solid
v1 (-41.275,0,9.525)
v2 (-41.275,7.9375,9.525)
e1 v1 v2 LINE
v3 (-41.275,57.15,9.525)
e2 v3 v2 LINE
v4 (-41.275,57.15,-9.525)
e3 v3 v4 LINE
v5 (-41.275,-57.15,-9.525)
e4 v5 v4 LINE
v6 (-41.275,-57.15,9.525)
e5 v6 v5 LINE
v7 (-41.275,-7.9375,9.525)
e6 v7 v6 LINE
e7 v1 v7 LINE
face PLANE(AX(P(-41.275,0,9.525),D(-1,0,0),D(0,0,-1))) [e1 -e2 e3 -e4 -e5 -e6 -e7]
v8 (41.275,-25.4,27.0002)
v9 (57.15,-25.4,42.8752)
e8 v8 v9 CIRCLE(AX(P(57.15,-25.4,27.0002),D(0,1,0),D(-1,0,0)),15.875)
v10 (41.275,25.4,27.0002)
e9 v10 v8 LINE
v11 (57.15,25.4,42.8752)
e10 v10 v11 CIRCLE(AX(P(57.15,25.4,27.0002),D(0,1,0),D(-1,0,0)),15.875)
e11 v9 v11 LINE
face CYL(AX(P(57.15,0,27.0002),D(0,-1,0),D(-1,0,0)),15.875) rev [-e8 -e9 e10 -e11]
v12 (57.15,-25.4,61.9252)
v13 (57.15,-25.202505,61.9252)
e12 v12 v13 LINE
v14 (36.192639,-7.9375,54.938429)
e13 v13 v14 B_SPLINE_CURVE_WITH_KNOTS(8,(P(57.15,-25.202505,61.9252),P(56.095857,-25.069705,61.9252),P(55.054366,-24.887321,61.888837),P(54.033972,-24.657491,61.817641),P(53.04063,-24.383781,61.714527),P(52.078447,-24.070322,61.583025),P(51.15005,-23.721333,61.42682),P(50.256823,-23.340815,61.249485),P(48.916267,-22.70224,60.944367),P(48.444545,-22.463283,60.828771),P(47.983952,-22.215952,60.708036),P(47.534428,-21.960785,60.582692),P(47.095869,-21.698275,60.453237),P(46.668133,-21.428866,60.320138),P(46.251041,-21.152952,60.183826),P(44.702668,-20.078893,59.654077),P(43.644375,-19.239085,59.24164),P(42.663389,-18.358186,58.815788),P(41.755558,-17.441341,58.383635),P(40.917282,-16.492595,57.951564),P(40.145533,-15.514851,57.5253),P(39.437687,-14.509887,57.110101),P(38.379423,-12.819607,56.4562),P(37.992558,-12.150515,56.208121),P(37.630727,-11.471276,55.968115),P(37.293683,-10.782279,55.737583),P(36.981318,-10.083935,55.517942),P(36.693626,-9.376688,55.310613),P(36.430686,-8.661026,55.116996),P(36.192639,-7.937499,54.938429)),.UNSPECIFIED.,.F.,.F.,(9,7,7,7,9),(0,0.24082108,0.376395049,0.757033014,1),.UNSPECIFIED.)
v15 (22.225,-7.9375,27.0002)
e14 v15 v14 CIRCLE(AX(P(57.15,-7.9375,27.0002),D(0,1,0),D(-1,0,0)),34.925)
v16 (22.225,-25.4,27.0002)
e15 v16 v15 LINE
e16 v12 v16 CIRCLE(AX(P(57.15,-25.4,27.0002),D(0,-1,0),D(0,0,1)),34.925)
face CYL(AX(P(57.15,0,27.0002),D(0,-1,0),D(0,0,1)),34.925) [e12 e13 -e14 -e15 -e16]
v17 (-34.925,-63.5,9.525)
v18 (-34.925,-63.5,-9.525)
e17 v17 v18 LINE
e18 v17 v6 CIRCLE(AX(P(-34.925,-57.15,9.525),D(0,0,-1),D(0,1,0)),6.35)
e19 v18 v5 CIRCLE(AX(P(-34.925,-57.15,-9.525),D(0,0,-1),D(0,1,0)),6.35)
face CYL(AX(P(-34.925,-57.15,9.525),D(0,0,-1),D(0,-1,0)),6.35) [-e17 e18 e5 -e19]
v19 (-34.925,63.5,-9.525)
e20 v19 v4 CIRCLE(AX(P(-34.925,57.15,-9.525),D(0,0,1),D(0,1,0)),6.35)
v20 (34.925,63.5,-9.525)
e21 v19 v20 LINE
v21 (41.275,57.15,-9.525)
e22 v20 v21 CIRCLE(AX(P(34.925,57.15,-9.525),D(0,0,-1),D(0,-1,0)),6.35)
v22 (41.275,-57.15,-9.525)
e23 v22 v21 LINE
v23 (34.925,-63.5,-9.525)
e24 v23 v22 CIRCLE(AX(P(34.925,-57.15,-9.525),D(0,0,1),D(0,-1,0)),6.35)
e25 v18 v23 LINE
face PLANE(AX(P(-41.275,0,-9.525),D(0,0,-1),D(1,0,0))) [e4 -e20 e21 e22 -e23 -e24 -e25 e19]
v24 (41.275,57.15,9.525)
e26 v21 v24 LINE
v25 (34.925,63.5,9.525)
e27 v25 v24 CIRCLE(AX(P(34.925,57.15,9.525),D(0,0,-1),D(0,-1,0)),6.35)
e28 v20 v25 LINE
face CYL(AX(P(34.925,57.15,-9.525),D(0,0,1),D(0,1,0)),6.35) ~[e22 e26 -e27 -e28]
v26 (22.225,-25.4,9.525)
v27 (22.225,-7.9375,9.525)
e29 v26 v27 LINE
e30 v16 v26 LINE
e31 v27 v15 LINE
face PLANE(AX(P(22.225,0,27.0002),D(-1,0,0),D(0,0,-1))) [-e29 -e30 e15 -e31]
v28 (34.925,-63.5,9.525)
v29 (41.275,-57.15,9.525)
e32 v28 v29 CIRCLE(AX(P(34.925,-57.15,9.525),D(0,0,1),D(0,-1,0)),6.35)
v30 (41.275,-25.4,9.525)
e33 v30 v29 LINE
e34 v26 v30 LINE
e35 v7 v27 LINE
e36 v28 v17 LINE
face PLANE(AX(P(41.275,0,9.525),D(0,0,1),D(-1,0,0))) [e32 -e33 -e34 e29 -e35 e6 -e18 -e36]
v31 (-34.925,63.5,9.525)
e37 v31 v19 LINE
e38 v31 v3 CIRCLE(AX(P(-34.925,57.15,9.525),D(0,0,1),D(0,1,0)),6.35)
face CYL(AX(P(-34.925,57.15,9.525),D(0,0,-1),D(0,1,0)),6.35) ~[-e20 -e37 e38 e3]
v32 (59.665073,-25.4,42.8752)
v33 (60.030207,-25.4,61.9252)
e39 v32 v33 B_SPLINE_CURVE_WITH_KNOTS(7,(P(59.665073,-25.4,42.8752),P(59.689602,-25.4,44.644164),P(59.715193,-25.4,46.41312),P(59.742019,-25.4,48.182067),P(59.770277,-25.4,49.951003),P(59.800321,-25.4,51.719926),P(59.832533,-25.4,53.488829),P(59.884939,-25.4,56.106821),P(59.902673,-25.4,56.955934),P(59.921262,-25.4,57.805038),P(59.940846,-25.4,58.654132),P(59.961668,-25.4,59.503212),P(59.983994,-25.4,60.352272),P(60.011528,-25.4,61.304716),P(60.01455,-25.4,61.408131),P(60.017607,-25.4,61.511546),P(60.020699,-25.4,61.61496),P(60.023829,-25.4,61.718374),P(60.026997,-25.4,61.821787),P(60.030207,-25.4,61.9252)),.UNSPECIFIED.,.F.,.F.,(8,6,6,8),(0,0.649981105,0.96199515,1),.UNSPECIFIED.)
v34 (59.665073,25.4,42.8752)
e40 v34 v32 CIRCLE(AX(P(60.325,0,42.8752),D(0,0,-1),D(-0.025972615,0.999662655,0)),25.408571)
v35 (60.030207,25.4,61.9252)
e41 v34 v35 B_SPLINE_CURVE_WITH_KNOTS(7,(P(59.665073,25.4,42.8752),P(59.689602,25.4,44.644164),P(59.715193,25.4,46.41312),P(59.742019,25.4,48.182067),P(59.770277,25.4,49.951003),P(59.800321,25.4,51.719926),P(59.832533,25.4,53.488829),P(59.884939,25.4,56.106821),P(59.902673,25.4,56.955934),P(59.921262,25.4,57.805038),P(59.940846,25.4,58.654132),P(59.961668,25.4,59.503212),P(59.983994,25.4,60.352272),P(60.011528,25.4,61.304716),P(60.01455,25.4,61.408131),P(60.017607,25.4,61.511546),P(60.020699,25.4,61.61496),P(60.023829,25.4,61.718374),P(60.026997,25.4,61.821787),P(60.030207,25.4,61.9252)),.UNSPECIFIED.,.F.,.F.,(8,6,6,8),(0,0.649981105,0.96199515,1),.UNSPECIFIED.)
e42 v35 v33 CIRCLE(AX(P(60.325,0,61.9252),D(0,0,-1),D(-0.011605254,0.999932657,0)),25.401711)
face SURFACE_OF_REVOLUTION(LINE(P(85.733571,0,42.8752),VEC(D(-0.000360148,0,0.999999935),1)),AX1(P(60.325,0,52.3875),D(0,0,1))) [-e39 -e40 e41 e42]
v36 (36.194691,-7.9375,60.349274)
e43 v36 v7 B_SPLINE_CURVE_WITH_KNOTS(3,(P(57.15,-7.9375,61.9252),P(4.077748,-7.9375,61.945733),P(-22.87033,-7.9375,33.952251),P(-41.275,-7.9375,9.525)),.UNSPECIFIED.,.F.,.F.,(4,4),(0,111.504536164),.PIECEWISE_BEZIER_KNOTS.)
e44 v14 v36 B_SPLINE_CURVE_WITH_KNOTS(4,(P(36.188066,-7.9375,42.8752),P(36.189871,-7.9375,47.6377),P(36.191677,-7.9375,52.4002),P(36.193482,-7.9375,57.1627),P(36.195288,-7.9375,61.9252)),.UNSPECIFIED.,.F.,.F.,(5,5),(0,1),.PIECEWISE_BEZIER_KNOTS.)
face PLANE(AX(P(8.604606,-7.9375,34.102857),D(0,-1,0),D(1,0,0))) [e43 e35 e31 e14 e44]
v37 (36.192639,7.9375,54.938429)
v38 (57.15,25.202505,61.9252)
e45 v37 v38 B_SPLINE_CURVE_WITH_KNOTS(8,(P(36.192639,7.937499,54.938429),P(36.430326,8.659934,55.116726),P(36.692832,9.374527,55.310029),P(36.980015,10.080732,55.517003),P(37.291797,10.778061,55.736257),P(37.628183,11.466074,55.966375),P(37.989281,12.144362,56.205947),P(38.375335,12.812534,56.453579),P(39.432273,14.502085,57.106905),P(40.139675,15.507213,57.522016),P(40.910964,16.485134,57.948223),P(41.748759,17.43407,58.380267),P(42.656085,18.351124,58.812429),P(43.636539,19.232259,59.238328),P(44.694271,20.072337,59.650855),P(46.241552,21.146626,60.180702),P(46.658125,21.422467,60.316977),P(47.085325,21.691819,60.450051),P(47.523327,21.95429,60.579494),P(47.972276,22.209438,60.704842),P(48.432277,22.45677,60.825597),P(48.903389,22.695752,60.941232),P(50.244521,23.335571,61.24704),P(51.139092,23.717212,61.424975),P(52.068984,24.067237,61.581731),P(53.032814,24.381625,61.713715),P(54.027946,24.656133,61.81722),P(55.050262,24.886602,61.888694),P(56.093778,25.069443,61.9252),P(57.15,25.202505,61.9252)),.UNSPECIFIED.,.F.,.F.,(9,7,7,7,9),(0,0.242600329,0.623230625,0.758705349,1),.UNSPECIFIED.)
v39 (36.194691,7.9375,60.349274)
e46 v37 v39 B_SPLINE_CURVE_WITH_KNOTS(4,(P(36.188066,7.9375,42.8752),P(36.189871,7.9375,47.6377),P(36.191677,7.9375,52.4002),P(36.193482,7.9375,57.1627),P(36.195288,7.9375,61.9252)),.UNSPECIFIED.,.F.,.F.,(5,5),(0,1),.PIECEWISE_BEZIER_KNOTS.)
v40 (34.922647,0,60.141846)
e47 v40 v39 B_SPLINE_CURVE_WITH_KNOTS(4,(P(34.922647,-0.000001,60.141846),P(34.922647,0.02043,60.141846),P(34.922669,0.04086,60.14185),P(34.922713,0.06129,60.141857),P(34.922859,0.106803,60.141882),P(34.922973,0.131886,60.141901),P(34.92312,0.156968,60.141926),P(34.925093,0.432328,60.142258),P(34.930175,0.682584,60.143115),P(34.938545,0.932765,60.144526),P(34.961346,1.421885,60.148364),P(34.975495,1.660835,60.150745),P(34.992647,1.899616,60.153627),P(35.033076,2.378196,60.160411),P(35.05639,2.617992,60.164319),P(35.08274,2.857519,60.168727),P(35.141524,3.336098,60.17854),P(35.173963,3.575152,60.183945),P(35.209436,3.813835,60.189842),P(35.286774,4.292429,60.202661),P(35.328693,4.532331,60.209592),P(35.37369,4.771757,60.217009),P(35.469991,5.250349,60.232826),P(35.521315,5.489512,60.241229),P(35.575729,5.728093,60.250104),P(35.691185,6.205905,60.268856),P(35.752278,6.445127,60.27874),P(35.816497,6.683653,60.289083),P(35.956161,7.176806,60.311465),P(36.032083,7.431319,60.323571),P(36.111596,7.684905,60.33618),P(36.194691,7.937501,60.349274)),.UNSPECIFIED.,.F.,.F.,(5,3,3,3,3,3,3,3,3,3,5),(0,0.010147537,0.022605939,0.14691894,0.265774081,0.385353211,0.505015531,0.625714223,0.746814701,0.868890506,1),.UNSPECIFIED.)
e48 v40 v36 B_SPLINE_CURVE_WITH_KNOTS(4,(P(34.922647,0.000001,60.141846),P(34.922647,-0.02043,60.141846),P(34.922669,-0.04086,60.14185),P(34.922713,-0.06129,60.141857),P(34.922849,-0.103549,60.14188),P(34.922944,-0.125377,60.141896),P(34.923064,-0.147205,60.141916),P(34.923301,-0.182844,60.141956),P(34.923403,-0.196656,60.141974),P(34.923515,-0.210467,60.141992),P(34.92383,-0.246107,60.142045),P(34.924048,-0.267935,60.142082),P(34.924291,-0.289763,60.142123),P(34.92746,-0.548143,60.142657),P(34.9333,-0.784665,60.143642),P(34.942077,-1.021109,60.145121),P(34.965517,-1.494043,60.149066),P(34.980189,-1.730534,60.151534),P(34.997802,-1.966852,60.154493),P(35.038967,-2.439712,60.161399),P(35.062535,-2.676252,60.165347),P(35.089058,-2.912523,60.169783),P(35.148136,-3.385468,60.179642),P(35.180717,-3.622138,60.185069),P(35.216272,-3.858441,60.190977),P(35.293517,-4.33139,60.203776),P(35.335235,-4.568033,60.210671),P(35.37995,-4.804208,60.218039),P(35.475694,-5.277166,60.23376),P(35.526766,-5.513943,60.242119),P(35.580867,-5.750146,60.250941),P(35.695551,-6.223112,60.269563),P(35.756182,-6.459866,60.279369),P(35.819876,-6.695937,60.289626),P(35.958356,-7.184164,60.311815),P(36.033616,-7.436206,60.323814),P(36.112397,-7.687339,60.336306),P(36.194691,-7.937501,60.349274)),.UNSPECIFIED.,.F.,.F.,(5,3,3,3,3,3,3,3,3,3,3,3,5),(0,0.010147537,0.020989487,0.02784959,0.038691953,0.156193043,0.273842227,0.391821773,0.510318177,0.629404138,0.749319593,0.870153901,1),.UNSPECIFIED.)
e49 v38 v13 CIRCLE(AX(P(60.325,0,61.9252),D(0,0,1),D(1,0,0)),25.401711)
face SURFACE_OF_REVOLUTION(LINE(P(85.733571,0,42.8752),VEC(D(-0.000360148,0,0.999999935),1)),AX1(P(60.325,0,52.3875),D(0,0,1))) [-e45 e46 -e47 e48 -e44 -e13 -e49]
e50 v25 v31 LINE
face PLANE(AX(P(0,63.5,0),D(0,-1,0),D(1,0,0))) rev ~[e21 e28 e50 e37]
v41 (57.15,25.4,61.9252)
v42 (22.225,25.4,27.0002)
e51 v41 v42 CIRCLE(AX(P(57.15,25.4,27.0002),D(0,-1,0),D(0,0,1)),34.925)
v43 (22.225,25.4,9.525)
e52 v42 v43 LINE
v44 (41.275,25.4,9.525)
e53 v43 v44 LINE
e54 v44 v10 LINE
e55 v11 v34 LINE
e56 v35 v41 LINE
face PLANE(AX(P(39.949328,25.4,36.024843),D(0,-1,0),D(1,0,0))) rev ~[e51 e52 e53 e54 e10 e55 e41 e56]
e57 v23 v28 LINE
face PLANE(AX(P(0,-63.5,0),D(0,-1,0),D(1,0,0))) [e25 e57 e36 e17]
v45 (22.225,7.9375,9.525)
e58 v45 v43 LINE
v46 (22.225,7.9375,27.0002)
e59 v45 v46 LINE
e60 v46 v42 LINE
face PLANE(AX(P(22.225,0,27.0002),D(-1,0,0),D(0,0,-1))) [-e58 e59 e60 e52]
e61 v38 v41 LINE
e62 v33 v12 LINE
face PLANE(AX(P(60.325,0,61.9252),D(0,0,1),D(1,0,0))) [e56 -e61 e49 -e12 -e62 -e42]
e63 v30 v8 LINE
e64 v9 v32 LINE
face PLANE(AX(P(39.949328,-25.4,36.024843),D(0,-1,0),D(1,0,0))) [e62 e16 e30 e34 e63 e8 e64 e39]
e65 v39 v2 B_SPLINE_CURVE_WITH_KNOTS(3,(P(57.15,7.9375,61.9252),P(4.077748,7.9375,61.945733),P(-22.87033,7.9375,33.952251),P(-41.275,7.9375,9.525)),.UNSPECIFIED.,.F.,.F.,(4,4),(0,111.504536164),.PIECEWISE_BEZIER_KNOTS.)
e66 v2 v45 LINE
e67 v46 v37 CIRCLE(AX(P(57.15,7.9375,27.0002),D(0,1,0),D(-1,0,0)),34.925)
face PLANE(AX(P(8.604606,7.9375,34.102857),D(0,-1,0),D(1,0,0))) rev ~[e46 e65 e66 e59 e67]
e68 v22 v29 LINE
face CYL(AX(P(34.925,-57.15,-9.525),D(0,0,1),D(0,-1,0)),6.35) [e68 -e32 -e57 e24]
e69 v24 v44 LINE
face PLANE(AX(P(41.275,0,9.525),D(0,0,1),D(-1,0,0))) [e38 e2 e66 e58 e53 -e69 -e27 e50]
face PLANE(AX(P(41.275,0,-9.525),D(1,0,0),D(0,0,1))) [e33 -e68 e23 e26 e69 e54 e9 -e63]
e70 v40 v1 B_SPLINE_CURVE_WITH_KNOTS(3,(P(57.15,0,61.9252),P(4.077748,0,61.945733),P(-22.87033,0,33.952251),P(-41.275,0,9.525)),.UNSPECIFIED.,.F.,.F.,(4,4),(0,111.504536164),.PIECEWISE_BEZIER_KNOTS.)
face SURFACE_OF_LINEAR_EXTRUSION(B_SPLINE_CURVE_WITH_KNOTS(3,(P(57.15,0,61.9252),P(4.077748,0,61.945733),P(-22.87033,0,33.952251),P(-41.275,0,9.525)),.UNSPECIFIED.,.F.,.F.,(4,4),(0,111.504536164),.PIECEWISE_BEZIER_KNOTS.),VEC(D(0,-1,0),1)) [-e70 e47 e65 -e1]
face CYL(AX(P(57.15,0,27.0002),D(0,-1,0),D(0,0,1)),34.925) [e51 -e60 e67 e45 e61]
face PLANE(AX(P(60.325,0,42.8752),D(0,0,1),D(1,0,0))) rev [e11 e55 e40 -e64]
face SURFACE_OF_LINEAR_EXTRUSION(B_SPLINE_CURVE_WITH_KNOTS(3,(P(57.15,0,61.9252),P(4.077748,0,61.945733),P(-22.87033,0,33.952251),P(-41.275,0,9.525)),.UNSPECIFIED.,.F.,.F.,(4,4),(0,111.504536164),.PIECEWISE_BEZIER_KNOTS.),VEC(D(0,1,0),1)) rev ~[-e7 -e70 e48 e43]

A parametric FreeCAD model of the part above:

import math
import FreeCAD as App
import Part
import Sketcher

V = App.Vector
Q = App.Units.Quantity


def edges_at(feature, points):
    """Names of the edges that pass closest to the given points."""
    edges = feature.Shape.Edges
    near = lambda p: min(range(len(edges)), key=lambda i: edges[i].distToShape(Part.Vertex(*p))[0])
    return sorted({f"Edge{near(p) + 1}" for p in points})


def add_polygon(sketch, points):
    """Adds a closed chain of lines whose ends are joined by coincident constraints."""
    first, n = sketch.GeometryCount, len(points)
    for a, b in zip(points, points[1:] + points[:1]):
        sketch.addGeometry(Part.LineSegment(App.Vector(*a, 0), App.Vector(*b, 0)), False)
    for i in range(n):
        sketch.addConstraint(Sketcher.Constraint("Coincident", first + i, 2, first + (i + 1) % n, 1))

doc = App.newDocument("Part")
body = doc.addObject("PartDesign::Body", "Body")

sketch1 = body.newObject("Sketcher::SketchObject", "Sketch")
sketch1.AttachmentSupport = (doc.getObject("XZ_Plane"), [""])
sketch1.MapMode = "FlatFace"
add_polygon(sketch1, [(41, -10), (41, 10), (-41, 10), (-41, -10)])
sketch1.addConstraint(Sketcher.Constraint("Vertical", 0))
sketch1.addConstraint(Sketcher.Constraint("Horizontal", 1))
sketch1.addConstraint(Sketcher.Constraint("Vertical", 2))
sketch1.addConstraint(Sketcher.Constraint("Horizontal", 3))
sketch1.addConstraint(Sketcher.Constraint("Symmetric", 0, 2, 2, 2, -1, 1))
sketch1.addConstraint(Sketcher.Constraint("DistanceX", 1, 2, 1, 1, Q("3.25 in")))
sketch1.addConstraint(Sketcher.Constraint("DistanceY", 0, 1, 0, 2, Q("0.75 in")))
pad1 = body.newObject("PartDesign::Pad", "Pad")
pad1.Profile = sketch1
pad1.Length = Q("5 in")
pad1.Midplane = True

sketch2 = body.newObject("Sketcher::SketchObject", "Sketch001")
sketch2.AttachmentSupport = (doc.getObject("XZ_Plane"), [""])
sketch2.MapMode = "FlatFace"
sketch2.addGeometry(Part.LineSegment(V(22.2, 9.5, 0), V(41.3, 9.5, 0)), False)
sketch2.addGeometry(Part.LineSegment(V(41.3, 9.5, 0), V(41.3, 27, 0)), False)
sketch2.addGeometry(Part.ArcOfCircle(Part.Circle(V(57.1, 27, 0), V(0, 0, 1), 15.9), math.radians(90), math.radians(180)), False)
sketch2.addGeometry(Part.LineSegment(V(57.1, 42.9, 0), V(60.3, 42.9, 0)), False)
sketch2.addGeometry(Part.LineSegment(V(60.3, 42.9, 0), V(60.3, 61.9, 0)), False)
sketch2.addGeometry(Part.LineSegment(V(60.3, 61.9, 0), V(57.1, 61.9, 0)), False)
sketch2.addGeometry(Part.ArcOfCircle(Part.Circle(V(57.1, 27, 0), V(0, 0, 1), 34.9), math.radians(90), math.radians(180)), False)
sketch2.addGeometry(Part.LineSegment(V(22.2, 27, 0), V(22.2, 9.5, 0)), False)
sketch2.addConstraint(Sketcher.Constraint("Coincident", 0, 2, 1, 1))
sketch2.addConstraint(Sketcher.Constraint("Tangent", 1, 2, 2, 2))
sketch2.addConstraint(Sketcher.Constraint("Tangent", 2, 1, 3, 1))
sketch2.addConstraint(Sketcher.Constraint("Coincident", 3, 2, 4, 1))
sketch2.addConstraint(Sketcher.Constraint("Coincident", 4, 2, 5, 1))
sketch2.addConstraint(Sketcher.Constraint("Tangent", 5, 2, 6, 1))
sketch2.addConstraint(Sketcher.Constraint("Tangent", 6, 2, 7, 1))
sketch2.addConstraint(Sketcher.Constraint("Coincident", 7, 2, 0, 1))
sketch2.addConstraint(Sketcher.Constraint("Horizontal", 0))
sketch2.addConstraint(Sketcher.Constraint("Vertical", 1))
sketch2.addConstraint(Sketcher.Constraint("Horizontal", 3))
sketch2.addConstraint(Sketcher.Constraint("Vertical", 4))
sketch2.addConstraint(Sketcher.Constraint("Horizontal", 5))
sketch2.addConstraint(Sketcher.Constraint("Vertical", 7))
sketch2.addConstraint(Sketcher.Constraint("Coincident", 6, 3, 2, 3))
sketch2.addConstraint(Sketcher.Constraint("Radius", 2, Q("0.625 in")))
sketch2.addConstraint(Sketcher.Constraint("Radius", 6, Q("1.375 in")))
sketch2.addConstraint(Sketcher.Constraint("DistanceX", 3, 1, 3, 2, Q("0.125 in")))
sketch2.addConstraint(Sketcher.Constraint("DistanceY", 1, 1, 1, 2, Q("0.688 in")))
sketch2.addConstraint(Sketcher.Constraint("DistanceX", -1, 1, 2, 3, Q("2.25 in")))
sketch2.addConstraint(Sketcher.Constraint("DistanceY", -1, 1, 2, 3, Q("1.063 in")))
pad2 = body.newObject("PartDesign::Pad", "Pad001")
pad2.Profile = sketch2
pad2.Length = Q("2 in")
pad2.Midplane = True

sketch3 = body.newObject("Sketcher::SketchObject", "Sketch002")
sketch3.AttachmentSupport = (doc.getObject("XZ_Plane"), [""])
sketch3.MapMode = "FlatFace"
sketch3.addGeometry(Part.LineSegment(V(-41.275, 9.525, 0), V(22.225, 9.525, 0)), False)
sketch3.addGeometry(Part.LineSegment(V(22.225, 9.525, 0), V(22.225, 27.0002, 0)), False)
sketch3.addGeometry(Part.ArcOfCircle(Part.Circle(V(57.15, 27.0002, 0), V(0, 0, 1), 34.925), math.radians(90), math.radians(180)), False)
sketch3.addGeometry(Part.BSplineCurve([V(57.15, 61.9252, 0), V(4.077748, 61.945733, 0), V(-22.87033, 33.952251, 0), V(-41.275, 9.525, 0)], [4, 4], [0, 111.504536164], False, 3, [1, 1, 1, 1], False), False)
sketch3.addConstraint(Sketcher.Constraint("Block", 3))
sketch3.addConstraint(Sketcher.Constraint("Coincident", 0, 2, 1, 1))
sketch3.addConstraint(Sketcher.Constraint("Tangent", 1, 2, 2, 2))
sketch3.addConstraint(Sketcher.Constraint("Coincident", 2, 1, 3, 1))
sketch3.addConstraint(Sketcher.Constraint("Coincident", 3, 2, 0, 1))
sketch3.addConstraint(Sketcher.Constraint("Horizontal", 0))
sketch3.addConstraint(Sketcher.Constraint("Vertical", 1))
sketch3.addConstraint(Sketcher.Constraint("DistanceX", 0, 1, 0, 2, Q("2.5 in")))
sketch3.addConstraint(Sketcher.Constraint("Radius", 2, Q("1.375 in")))
pad3 = body.newObject("PartDesign::Pad", "Pad002")
pad3.Profile = sketch3
pad3.Length = Q("0.625 in")
pad3.Midplane = True

sketch4 = body.newObject("Sketcher::SketchObject", "Sketch003")
sketch4.AttachmentSupport = (doc.getObject("XZ_Plane"), [""])
sketch4.MapMode = "FlatFace"
add_polygon(sketch4, [(60, 62), (60, 43), (86, 43), (86, 62)])
sketch4.addGeometry(Part.LineSegment(V(60, 43, 0), V(60, 62, 0)), True)
sketch4.addConstraint(Sketcher.Constraint("Vertical", 0))
sketch4.addConstraint(Sketcher.Constraint("Horizontal", 1))
sketch4.addConstraint(Sketcher.Constraint("Horizontal", 3))
sketch4.addConstraint(Sketcher.Constraint("Vertical", 4))
sketch4.addConstraint(Sketcher.Constraint("Coincident", 4, 1, 0, 2))
sketch4.addConstraint(Sketcher.Constraint("Horizontal", 2, 2, 4, 2))
sketch4.addConstraint(Sketcher.Constraint("DistanceY", 0, 2, 0, 1, Q("0.75 in")))
sketch4.addConstraint(Sketcher.Constraint("DistanceX", -1, 1, 0, 2, Q("2.375 in")))
sketch4.addConstraint(Sketcher.Constraint("DistanceY", -1, 1, 0, 2, Q("1.688 in")))
sketch4.addConstraint(Sketcher.Constraint("DistanceX", 1, 1, 1, 2, Q("25.408571 mm")))
sketch4.addConstraint(Sketcher.Constraint("DistanceX", 3, 2, 3, 1, Q("25.401711 mm")))
revolution = body.newObject("PartDesign::Revolution", "Revolution")
revolution.Profile = sketch4
revolution.ReferenceAxis = (sketch4, ["Axis0"])
revolution.Angle = 360
doc.recompute()

fillet = body.newObject("PartDesign::Fillet", "Fillet")
fillet.Base = (revolution, edges_at(revolution, [
    (41.275, -63.5, 0),
    (-41.275, -63.5, 0),
    (-41.275, 63.5, 0),
    (41.275, 63.5, 0),
]))
fillet.Radius = Q("0.25 in")

doc.recompute()
